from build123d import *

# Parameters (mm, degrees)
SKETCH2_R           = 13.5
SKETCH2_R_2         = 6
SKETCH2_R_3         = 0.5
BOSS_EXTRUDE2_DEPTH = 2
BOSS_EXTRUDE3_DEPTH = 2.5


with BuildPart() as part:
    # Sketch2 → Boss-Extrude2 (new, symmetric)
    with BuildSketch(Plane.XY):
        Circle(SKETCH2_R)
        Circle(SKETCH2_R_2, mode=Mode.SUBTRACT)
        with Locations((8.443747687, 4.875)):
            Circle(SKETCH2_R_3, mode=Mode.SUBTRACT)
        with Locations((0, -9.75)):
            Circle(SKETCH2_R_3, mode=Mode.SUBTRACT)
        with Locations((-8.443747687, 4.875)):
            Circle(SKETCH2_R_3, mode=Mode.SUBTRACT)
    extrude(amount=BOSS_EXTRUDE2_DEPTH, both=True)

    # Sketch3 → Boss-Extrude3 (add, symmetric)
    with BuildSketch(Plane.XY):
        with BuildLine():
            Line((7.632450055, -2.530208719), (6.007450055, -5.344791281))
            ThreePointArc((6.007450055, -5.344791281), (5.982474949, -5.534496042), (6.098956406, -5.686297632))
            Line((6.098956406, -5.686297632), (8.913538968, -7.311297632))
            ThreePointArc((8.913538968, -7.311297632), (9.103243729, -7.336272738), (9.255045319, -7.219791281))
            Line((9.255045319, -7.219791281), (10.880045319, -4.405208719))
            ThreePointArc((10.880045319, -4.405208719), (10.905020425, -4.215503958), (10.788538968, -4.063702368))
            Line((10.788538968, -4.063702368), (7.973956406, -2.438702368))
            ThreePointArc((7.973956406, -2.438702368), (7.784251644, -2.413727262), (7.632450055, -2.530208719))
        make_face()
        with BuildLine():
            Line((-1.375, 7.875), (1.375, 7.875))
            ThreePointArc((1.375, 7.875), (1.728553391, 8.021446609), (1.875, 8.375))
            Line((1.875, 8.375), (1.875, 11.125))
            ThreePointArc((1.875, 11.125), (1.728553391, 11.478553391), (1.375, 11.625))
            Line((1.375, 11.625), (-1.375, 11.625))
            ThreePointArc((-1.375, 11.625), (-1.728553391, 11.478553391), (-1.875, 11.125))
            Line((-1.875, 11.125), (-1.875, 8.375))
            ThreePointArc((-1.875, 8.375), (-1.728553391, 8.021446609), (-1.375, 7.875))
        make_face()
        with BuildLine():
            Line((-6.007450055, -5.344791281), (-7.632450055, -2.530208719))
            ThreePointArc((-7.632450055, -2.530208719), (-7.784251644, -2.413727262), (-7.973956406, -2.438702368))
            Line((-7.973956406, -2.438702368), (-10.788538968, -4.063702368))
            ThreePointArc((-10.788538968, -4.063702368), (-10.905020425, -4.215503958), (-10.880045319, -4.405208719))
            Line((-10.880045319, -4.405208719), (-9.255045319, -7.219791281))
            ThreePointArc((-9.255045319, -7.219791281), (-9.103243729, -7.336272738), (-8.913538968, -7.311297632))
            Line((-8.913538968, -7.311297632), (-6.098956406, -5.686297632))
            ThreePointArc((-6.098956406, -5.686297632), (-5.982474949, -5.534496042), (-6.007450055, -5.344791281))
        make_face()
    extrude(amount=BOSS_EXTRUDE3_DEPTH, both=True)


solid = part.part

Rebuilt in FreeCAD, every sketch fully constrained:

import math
import FreeCAD as App
import Part
import Sketcher

V = App.Vector
Q = App.Units.Quantity

doc = App.newDocument("Part")
body = doc.addObject("PartDesign::Body", "Body")

# Sketch on XY plane
sketch1 = body.newObject("Sketcher::SketchObject", "Sketch")
sketch1.AttachmentSupport = (doc.getObject("XY_Plane"), [""])
sketch1.MapMode = "FlatFace"
sketch1.addGeometry([
    Part.Circle(V(0, 0, 0), V(0, 0, 1), 13.5),  # 0
    Part.Circle(V(0, -9.8, 0), V(0, 0, 1), 0.5),  # 1
    Part.Circle(V(0, 0, 0), V(0, 0, 1), 6),  # 2
    Part.Circle(V(-8.4, 4.9, 0), V(0, 0, 1), 0.5),  # 3
    Part.Circle(V(8.4, 4.9, 0), V(0, 0, 1), 0.5),  # 4
], False)
sketch1.addConstraint([
    Sketcher.Constraint("Coincident", 0, 3, -1, 1),
    Sketcher.Constraint("Coincident", 2, 3, -1, 1),
    Sketcher.Constraint("Equal", 1, 3),
    Sketcher.Constraint("Equal", 3, 4),
    Sketcher.Constraint("Symmetric", 3, 3, 4, 3, -2),
    Sketcher.Constraint("PointOnObject", 1, 3, -2),
    Sketcher.Constraint("Diameter", 0, 27.0),
    Sketcher.Constraint("Diameter", 1, 1.0),
    Sketcher.Constraint("Diameter", 2, 12.0),
    Sketcher.Constraint("DistanceY", 1, 3, -1, 1, 9.75),
    Sketcher.Constraint("DistanceY", -1, 1, 3, 3, 4.875),
    Sketcher.Constraint("DistanceX", 3, 3, -1, 1, 8.443748),
])
pad1 = body.newObject("PartDesign::Pad", "Pad")
pad1.Profile = sketch1
pad1.Length = 4
pad1.Midplane = True

# Sketch on XY plane
sketch2 = body.newObject("Sketcher::SketchObject", "Sketch001")
sketch2.AttachmentSupport = (doc.getObject("XY_Plane"), [""])
sketch2.MapMode = "FlatFace"
sketch2.addGeometry([
    Part.LineSegment(V(7.63, -2.53, 0), V(6.01, -5.34, 0)),  # 0
    Part.ArcOfCircle(Part.Circle(V(6.22, -5.47, 0), V(0, 0, 1), 0.25), math.radians(150), math.radians(240)),  # 1
    Part.LineSegment(V(6.1, -5.69, 0), V(8.91, -7.31, 0)),  # 2
    Part.ArcOfCircle(Part.Circle(V(9.04, -7.09, 0), V(0, 0, 1), 0.25), math.radians(-120), math.radians(-30)),  # 3
    Part.LineSegment(V(9.26, -7.22, 0), V(10.88, -4.41, 0)),  # 4
    Part.ArcOfCircle(Part.Circle(V(10.66, -4.28, 0), V(0, 0, 1), 0.25), math.radians(-30), math.radians(60)),  # 5
    Part.LineSegment(V(10.79, -4.06, 0), V(7.97, -2.44, 0)),  # 6
    Part.ArcOfCircle(Part.Circle(V(7.85, -2.66, 0), V(0, 0, 1), 0.25), math.radians(60), math.radians(150)),  # 7
    Part.LineSegment(V(-1.38, 7.88, 0), V(1.38, 7.88, 0)),  # 8
    Part.ArcOfCircle(Part.Circle(V(1.38, 8.37, 0), V(0, 0, 1), 0.5), math.radians(-90), math.radians(0)),  # 9
    Part.LineSegment(V(1.88, 8.38, 0), V(1.88, 11.12, 0)),  # 10
    Part.ArcOfCircle(Part.Circle(V(1.38, 11.13, 0), V(0, 0, 1), 0.5), math.radians(0), math.radians(90)),  # 11
    Part.LineSegment(V(1.38, 11.62, 0), V(-1.38, 11.62, 0)),  # 12
    Part.ArcOfCircle(Part.Circle(V(-1.38, 11.13, 0), V(0, 0, 1), 0.5), math.radians(90), math.radians(180)),  # 13
    Part.LineSegment(V(-1.88, 11.12, 0), V(-1.88, 8.38, 0)),  # 14
    Part.ArcOfCircle(Part.Circle(V(-1.38, 8.37, 0), V(0, 0, 1), 0.5), math.radians(180), math.radians(270)),  # 15
    Part.LineSegment(V(-6.01, -5.34, 0), V(-7.63, -2.53, 0)),  # 16
    Part.ArcOfCircle(Part.Circle(V(-7.85, -2.66, 0), V(0, 0, 1), 0.25), math.radians(30), math.radians(120)),  # 17
    Part.LineSegment(V(-7.97, -2.44, 0), V(-10.79, -4.06, 0)),  # 18
    Part.ArcOfCircle(Part.Circle(V(-10.66, -4.28, 0), V(0, 0, 1), 0.25), math.radians(120), math.radians(210)),  # 19
    Part.LineSegment(V(-10.88, -4.41, 0), V(-9.26, -7.22, 0)),  # 20
    Part.ArcOfCircle(Part.Circle(V(-9.04, -7.09, 0), V(0, 0, 1), 0.25), math.radians(-150), math.radians(-60)),  # 21
    Part.LineSegment(V(-8.91, -7.31, 0), V(-6.1, -5.69, 0)),  # 22
    Part.ArcOfCircle(Part.Circle(V(-6.22, -5.47, 0), V(0, 0, 1), 0.25), math.radians(-60), math.radians(30)),  # 23
], False)
sketch2.addConstraint([
    Sketcher.Constraint("Tangent", 0, 2, 1, 1),
    Sketcher.Constraint("Tangent", 1, 2, 2, 1),
    Sketcher.Constraint("Tangent", 2, 2, 3, 1),
    Sketcher.Constraint("Tangent", 3, 2, 4, 1),
    Sketcher.Constraint("Tangent", 4, 2, 5, 1),
    Sketcher.Constraint("Tangent", 5, 2, 6, 1),
    Sketcher.Constraint("Tangent", 6, 2, 7, 1),
    Sketcher.Constraint("Tangent", 7, 2, 0, 1),
    Sketcher.Constraint("Tangent", 8, 2, 9, 1),
    Sketcher.Constraint("Tangent", 9, 2, 10, 1),
    Sketcher.Constraint("Tangent", 10, 2, 11, 1),
    Sketcher.Constraint("Tangent", 11, 2, 12, 1),
    Sketcher.Constraint("Tangent", 12, 2, 13, 1),
    Sketcher.Constraint("Tangent", 13, 2, 14, 1),
    Sketcher.Constraint("Tangent", 14, 2, 15, 1),
    Sketcher.Constraint("Tangent", 15, 2, 8, 1),
    Sketcher.Constraint("Tangent", 16, 2, 17, 1),
    Sketcher.Constraint("Tangent", 17, 2, 18, 1),
    Sketcher.Constraint("Tangent", 18, 2, 19, 1),
    Sketcher.Constraint("Tangent", 19, 2, 20, 1),
    Sketcher.Constraint("Tangent", 20, 2, 21, 1),
    Sketcher.Constraint("Tangent", 21, 2, 22, 1),
    Sketcher.Constraint("Tangent", 22, 2, 23, 1),
    Sketcher.Constraint("Tangent", 23, 2, 16, 1),
    Sketcher.Constraint("Horizontal", 8),
    Sketcher.Constraint("Vertical", 10),
    Sketcher.Constraint("Horizontal", 12),
    Sketcher.Constraint("Vertical", 14),
    Sketcher.Constraint("Equal", 1, 3),
    Sketcher.Constraint("Equal", 3, 5),
    Sketcher.Constraint("Equal", 5, 7),
    Sketcher.Constraint("Equal", 9, 11),
    Sketcher.Constraint("Equal", 11, 13),
    Sketcher.Constraint("Equal", 13, 15),
    Sketcher.Constraint("Equal", 7, 17),
    Sketcher.Constraint("Equal", 17, 19),
    Sketcher.Constraint("Equal", 19, 21),
    Sketcher.Constraint("Equal", 21, 23),
    Sketcher.Constraint("Symmetric", 7, 3, 17, 3, -2),
    Sketcher.Constraint("Symmetric", 5, 3, 19, 3, -2),
    Sketcher.Constraint("Symmetric", 3, 3, 21, 3, -2),
    Sketcher.Constraint("Symmetric", 1, 3, 23, 3, -2),
    Sketcher.Constraint("Perpendicular", 0, 2),
    Sketcher.Constraint("Perpendicular", 2, 4),
    Sketcher.Constraint("Perpendicular", 4, 6),
    Sketcher.Constraint("Equal", 12, 10),
    Sketcher.Constraint("Equal", 0, 2),
    Sketcher.Constraint("Radius", 9, 0.5),
    Sketcher.Constraint("Angle", 0, Q("-120 deg")),
    Sketcher.Constraint("Radius", 1, 0.25),
    Sketcher.Constraint("DistanceX", 8, 1, 8, 2, 2.75),
    Sketcher.Constraint("Distance", 0, 3.25),
    Sketcher.Constraint("DistanceX", -1, 1, 9, 3, 1.375),
    Sketcher.Constraint("DistanceY", -1, 1, 9, 3, 8.375),
    Sketcher.Constraint("DistanceY", 1, 3, -1, 1, 5.469791),
    Sketcher.Constraint("DistanceX", -1, 1, 3, 3, 9.038539),
])
pad2 = body.newObject("PartDesign::Pad", "Pad001")
pad2.Profile = sketch2
pad2.Length = 5
pad2.Midplane = True

doc.recompute()
